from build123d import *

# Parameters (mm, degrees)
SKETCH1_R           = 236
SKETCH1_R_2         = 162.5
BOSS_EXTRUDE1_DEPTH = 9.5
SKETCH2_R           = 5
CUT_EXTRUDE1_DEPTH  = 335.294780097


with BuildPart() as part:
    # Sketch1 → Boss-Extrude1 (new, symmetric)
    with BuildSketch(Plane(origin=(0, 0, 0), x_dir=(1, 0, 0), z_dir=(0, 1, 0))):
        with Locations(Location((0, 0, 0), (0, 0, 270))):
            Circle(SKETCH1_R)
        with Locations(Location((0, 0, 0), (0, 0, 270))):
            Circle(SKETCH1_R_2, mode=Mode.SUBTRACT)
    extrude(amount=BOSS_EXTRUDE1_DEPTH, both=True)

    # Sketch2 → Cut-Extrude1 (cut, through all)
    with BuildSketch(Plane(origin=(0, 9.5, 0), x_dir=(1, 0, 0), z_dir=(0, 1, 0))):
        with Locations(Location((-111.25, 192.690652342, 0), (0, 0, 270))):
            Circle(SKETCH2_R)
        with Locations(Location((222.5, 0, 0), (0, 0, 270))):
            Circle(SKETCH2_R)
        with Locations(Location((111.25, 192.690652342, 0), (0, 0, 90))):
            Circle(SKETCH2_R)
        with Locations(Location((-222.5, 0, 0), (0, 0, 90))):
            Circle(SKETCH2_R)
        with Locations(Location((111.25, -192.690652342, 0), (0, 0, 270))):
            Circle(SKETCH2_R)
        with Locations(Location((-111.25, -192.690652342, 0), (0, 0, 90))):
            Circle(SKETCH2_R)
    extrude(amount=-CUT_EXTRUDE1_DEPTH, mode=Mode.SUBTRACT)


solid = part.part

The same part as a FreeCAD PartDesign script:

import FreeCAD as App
import Part
import Sketcher

V = App.Vector

doc = App.newDocument("Part")
params = doc.addObject("Spreadsheet::Sheet", "Params")
for row, (alias, value) in enumerate([
    ("sketch1_diameter", "472 mm"),
    ("sketch1_diameter2", "325 mm"),
    ("pad1_length", "19 mm"),
    ("sketch2_diameter", "10 mm"),
], start=1):
    params.set(f"A{row}", alias)
    params.set(f"B{row}", "=" + value)
    params.setAlias(f"B{row}", alias)

body = doc.addObject("PartDesign::Body", "Body")

# Sketch on XZ plane
sketch1 = body.newObject("Sketcher::SketchObject", "Sketch")
sketch1.AttachmentSupport = (doc.getObject("XZ_Plane"), [""])
sketch1.MapMode = "FlatFace"
sketch1.addGeometry([
    Part.Circle(V(0, 0, 0), V(0, 0, 1), 236),
    Part.Circle(V(0, 0, 0), V(0, 0, 1), 162),
], False)
sketch1.addConstraint([
    Sketcher.Constraint("Coincident", 0, 3, -1, 1),
    Sketcher.Constraint("Coincident", 1, 3, -1, 1),
    Sketcher.Constraint("Diameter", 0, 472.0),
    Sketcher.Constraint("Diameter", 1, 325.0),
])
sketch1.setExpression("Constraints[2]", "Params.sketch1_diameter")
sketch1.setExpression("Constraints[3]", "Params.sketch1_diameter2")
pad1 = body.newObject("PartDesign::Pad", "Pad")
pad1.Profile = sketch1
pad1.setExpression("Length", "Params.pad1_length")
pad1.Midplane = True

# Sketch on XZ plane
sketch2 = body.newObject("Sketcher::SketchObject", "Sketch001")
sketch2.AttachmentSupport = (doc.getObject("XZ_Plane"), [""])
sketch2.MapMode = "FlatFace"
sketch2.AttachmentOffset = App.Placement(V(0, 0, -9.5), App.Rotation())
sketch2.addGeometry([
    Part.Circle(V(-111, -193, 0), V(0, 0, 1), 5),  # 0
    Part.Circle(V(222, 0, 0), V(0, 0, 1), 5),  # 1
    Part.Circle(V(111, -193, 0), V(0, 0, 1), 5),  # 2
    Part.Circle(V(-222, 0, 0), V(0, 0, 1), 5),  # 3
    Part.Circle(V(111, 193, 0), V(0, 0, 1), 5),  # 4
    Part.Circle(V(-111, 193, 0), V(0, 0, 1), 5),  # 5
], False)
sketch2.addConstraint([
    Sketcher.Constraint("Equal", 0, 1),
    Sketcher.Constraint("Equal", 1, 2),
    Sketcher.Constraint("Equal", 2, 3),
    Sketcher.Constraint("Equal", 3, 4),
    Sketcher.Constraint("Equal", 4, 5),
    Sketcher.Constraint("Symmetric", 1, 3, 3, 3, -1, 1),
    Sketcher.Constraint("Symmetric", 0, 3, 4, 3, -1, 1),
    Sketcher.Constraint("Symmetric", 2, 3, 5, 3, -1, 1),
    Sketcher.Constraint("Symmetric", 0, 3, 2, 3, -2),
    Sketcher.Constraint("PointOnObject", 1, 3, -1),
    Sketcher.Constraint("Diameter", 0, 10.0),
    Sketcher.Constraint("DistanceX", 3, 3, 1, 3, 445.0),
    Sketcher.Constraint("DistanceX", 0, 3, 2, 3, 222.5),
    Sketcher.Constraint("DistanceY", 0, 3, -1, 1, 192.690652),
])
sketch2.setExpression("Constraints[10]", "Params.sketch2_diameter")
pocket1 = body.newObject("PartDesign::Pocket", "Pocket")
pocket1.Profile = sketch2
pocket1.Type = "ThroughAll"
pocket1.Reversed = True

doc.recompute()
